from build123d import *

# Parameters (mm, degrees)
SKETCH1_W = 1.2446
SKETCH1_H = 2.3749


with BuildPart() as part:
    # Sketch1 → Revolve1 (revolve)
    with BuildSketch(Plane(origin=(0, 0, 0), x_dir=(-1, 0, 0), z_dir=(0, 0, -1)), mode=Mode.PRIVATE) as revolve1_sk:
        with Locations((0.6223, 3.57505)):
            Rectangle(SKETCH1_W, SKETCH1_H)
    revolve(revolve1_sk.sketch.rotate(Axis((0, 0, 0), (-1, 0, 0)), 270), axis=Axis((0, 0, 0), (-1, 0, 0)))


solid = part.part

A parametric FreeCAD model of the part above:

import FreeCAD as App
import Part
import Sketcher

V = App.Vector
Q = App.Units.Quantity

doc = App.newDocument("Part")
body = doc.addObject("PartDesign::Body", "Body")

# Sketch on XY plane
sketch1 = body.newObject("Sketcher::SketchObject", "Sketch")
sketch1.AttachmentSupport = (doc.getObject("XY_Plane"), [""])
sketch1.MapMode = "FlatFace"
sketch1.addGeometry(Part.LineSegment(V(0, 4.8, 0), V(0, 2.4, 0)), False)
sketch1.addGeometry(Part.LineSegment(V(0, 2.4, 0), V(-1.2, 2.4, 0)), False)
sketch1.addGeometry(Part.LineSegment(V(-1.2, 2.4, 0), V(-1.2, 4.8, 0)), False)
sketch1.addGeometry(Part.LineSegment(V(-1.2, 4.8, 0), V(0, 4.8, 0)), False)
sketch1.addConstraint(Sketcher.Constraint("Coincident", 0, 2, 1, 1))
sketch1.addConstraint(Sketcher.Constraint("Coincident", 1, 2, 2, 1))
sketch1.addConstraint(Sketcher.Constraint("Coincident", 2, 2, 3, 1))
sketch1.addConstraint(Sketcher.Constraint("Coincident", 3, 2, 0, 1))
sketch1.addConstraint(Sketcher.Constraint("Vertical", 0))
sketch1.addConstraint(Sketcher.Constraint("Horizontal", 1))
sketch1.addConstraint(Sketcher.Constraint("Vertical", 2))
sketch1.addConstraint(Sketcher.Constraint("Horizontal", 3))
sketch1.addConstraint(Sketcher.Constraint("PointOnObject", 0, 2, -2))
sketch1.addConstraint(Sketcher.Constraint("DistanceX", 1, 2, 1, 1, Q("0.049 in")))
sketch1.addConstraint(Sketcher.Constraint("DistanceY", 0, 2, 0, 1, Q("0.0935 in")))
sketch1.addConstraint(Sketcher.Constraint("DistanceY", -1, 1, 0, 2, Q("0.094 in")))
revolution = body.newObject("PartDesign::Revolution", "Revolution")
revolution.Profile = sketch1
revolution.ReferenceAxis = (sketch1, ["H_Axis"])
revolution.Angle = 360

doc.recompute()
